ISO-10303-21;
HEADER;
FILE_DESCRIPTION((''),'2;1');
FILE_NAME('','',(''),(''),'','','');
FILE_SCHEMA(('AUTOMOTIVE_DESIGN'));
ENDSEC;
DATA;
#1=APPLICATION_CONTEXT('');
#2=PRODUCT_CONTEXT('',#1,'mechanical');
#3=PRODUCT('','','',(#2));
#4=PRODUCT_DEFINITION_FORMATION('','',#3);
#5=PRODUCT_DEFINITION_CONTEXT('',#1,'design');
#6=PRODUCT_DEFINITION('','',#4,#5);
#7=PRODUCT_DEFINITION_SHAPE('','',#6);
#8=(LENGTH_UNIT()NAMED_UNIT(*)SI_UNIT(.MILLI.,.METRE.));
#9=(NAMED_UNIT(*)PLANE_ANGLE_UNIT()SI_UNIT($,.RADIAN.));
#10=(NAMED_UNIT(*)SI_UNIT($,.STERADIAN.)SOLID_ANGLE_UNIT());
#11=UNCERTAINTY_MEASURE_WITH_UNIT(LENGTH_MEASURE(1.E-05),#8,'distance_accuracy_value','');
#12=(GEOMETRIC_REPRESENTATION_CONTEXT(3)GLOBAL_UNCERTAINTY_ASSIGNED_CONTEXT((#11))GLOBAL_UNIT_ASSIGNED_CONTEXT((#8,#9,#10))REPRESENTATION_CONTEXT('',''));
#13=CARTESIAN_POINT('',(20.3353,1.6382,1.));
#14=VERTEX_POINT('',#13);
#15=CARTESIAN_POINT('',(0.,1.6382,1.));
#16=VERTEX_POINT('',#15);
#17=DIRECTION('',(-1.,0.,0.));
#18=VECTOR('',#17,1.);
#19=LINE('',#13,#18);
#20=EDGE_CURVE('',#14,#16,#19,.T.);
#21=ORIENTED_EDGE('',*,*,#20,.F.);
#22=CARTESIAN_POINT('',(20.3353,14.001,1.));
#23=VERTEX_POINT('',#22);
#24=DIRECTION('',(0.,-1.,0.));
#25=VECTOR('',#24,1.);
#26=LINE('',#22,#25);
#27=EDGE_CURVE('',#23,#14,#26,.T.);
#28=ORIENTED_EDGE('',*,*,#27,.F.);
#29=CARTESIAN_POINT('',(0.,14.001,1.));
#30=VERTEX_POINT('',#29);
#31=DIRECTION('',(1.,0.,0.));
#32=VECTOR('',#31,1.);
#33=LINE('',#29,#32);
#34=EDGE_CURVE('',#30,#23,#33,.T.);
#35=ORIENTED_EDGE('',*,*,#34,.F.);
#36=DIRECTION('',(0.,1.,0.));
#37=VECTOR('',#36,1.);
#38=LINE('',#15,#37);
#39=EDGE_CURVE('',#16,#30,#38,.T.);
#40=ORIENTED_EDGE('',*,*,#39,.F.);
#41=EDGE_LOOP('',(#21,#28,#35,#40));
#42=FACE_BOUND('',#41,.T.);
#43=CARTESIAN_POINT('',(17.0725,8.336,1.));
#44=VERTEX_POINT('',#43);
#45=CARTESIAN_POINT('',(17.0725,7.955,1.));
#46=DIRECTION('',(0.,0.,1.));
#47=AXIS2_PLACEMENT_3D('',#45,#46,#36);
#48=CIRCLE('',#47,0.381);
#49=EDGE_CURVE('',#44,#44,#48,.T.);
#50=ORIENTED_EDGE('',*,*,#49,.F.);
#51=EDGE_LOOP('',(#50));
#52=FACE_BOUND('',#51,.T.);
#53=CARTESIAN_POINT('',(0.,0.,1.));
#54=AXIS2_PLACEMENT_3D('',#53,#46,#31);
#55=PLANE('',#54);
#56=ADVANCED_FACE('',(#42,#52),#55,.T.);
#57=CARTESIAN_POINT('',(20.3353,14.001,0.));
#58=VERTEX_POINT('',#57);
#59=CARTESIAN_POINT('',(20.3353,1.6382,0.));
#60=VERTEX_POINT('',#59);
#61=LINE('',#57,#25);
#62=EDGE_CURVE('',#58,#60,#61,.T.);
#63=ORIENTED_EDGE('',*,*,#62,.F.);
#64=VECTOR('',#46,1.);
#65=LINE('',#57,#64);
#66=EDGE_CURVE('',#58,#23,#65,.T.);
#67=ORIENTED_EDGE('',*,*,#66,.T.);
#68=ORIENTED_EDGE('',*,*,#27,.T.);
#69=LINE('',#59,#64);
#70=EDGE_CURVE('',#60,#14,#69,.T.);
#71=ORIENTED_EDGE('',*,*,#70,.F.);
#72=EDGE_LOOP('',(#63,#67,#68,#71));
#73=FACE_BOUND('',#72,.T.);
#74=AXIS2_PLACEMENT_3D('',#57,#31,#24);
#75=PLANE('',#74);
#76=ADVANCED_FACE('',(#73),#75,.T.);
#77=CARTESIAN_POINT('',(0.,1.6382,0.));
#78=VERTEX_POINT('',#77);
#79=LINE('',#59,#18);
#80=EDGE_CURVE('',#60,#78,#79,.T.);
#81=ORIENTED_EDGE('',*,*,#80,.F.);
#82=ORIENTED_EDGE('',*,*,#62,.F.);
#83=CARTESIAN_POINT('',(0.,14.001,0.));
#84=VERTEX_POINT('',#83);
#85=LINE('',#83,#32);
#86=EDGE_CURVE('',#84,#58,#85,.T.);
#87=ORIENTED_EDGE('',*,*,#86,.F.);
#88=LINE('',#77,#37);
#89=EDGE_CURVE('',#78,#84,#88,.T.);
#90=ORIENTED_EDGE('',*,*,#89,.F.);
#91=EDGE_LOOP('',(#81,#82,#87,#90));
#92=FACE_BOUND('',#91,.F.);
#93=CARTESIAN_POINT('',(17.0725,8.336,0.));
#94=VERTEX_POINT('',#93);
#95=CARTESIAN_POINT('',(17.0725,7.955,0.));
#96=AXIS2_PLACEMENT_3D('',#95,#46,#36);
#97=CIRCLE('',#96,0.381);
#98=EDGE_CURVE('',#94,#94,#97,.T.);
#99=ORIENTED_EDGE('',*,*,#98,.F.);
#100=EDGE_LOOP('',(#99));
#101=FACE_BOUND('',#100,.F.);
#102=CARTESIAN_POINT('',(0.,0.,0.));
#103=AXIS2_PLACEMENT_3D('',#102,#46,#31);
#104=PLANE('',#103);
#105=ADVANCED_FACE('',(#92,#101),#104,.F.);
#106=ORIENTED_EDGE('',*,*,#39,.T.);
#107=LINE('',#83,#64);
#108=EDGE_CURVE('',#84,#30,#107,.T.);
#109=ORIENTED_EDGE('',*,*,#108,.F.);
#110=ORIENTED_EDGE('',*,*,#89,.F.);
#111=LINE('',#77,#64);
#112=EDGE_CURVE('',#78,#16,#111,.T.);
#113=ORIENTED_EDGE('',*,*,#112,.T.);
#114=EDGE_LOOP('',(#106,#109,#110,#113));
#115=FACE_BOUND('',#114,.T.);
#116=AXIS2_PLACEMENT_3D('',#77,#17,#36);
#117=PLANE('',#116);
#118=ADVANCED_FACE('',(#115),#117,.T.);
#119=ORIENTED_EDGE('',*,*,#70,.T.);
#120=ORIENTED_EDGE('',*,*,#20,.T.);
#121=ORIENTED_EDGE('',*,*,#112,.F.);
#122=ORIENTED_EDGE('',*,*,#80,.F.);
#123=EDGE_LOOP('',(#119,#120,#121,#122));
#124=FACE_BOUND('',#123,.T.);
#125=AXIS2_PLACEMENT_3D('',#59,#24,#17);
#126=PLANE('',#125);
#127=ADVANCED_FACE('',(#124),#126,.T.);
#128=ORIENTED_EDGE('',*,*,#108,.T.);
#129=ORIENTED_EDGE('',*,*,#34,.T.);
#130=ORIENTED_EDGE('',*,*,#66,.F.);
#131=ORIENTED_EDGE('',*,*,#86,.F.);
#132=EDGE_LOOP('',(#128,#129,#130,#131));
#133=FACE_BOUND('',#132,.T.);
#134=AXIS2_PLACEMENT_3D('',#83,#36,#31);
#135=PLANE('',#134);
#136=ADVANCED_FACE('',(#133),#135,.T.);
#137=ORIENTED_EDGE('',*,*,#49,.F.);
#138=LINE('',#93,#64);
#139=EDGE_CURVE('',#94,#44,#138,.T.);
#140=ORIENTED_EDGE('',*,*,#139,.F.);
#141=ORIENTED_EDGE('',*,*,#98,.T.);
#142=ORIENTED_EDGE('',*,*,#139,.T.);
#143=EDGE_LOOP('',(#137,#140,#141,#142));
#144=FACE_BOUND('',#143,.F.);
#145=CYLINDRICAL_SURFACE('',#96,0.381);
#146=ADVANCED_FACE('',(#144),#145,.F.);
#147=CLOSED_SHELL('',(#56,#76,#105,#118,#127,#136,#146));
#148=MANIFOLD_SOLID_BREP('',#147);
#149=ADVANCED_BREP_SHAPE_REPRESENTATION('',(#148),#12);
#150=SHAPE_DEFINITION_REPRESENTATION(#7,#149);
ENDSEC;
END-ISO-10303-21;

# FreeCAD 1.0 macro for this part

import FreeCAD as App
import Part
import Sketcher

V = App.Vector
Q = App.Units.Quantity


def add_polygon(sketch, points):
    """Adds a closed chain of lines whose ends are joined by coincident constraints."""
    first, n = sketch.GeometryCount, len(points)
    for a, b in zip(points, points[1:] + points[:1]):
        sketch.addGeometry(Part.LineSegment(App.Vector(*a, 0), App.Vector(*b, 0)), False)
    for i in range(n):
        sketch.addConstraint(Sketcher.Constraint("Coincident", first + i, 2, first + (i + 1) % n, 1))

doc = App.newDocument("Part")
params = doc.addObject("Spreadsheet::Sheet", "Params")
for row, (alias, value) in enumerate([
    ("pad1_length", "1 mm"),
    ("hole_diameter", "0.762 mm"),
], start=1):
    params.set(f"A{row}", alias)
    params.set(f"B{row}", "=" + value)
    params.setAlias(f"B{row}", alias)

body = doc.addObject("PartDesign::Body", "Body")

sketch1 = body.newObject("Sketcher::SketchObject", "Sketch")
sketch1.AttachmentSupport = (doc.getObject("XY_Plane"), [""])
sketch1.MapMode = "FlatFace"
add_polygon(sketch1, [(20, 14), (0, 14), (0, 2), (20, 2)])
sketch1.addConstraint([
    Sketcher.Constraint("Horizontal", 0),
    Sketcher.Constraint("Vertical", 1),
    Sketcher.Constraint("Horizontal", 2),
    Sketcher.Constraint("Vertical", 3),
    Sketcher.Constraint("PointOnObject", 0, 2, -2),
    Sketcher.Constraint("DistanceX", 0, 2, 0, 1, Q("20.3353 mm")),
    Sketcher.Constraint("DistanceY", 1, 2, 1, 1, Q("12.3628 mm")),
    Sketcher.Constraint("DistanceY", -1, 1, 0, 2, Q("14.001 mm")),
])
pad1 = body.newObject("PartDesign::Pad", "Pad")
pad1.Profile = sketch1
pad1.setExpression("Length", "Params.pad1_length")

sketch2 = body.newObject("Sketcher::SketchObject", "Sketch001")
sketch2.AttachmentSupport = (doc.getObject("XY_Plane"), [""])
sketch2.MapMode = "FlatFace"
sketch2.addGeometry(Part.Circle(V(17.07, 7.96, 0), V(0, 0, 1), 0.38), False)
sketch2.addConstraint([
    Sketcher.Constraint("Diameter", 0, Q("0.762 mm")),
    Sketcher.Constraint("DistanceY", -1, 1, 0, 3, Q("7.955 mm")),
    Sketcher.Constraint("DistanceX", -1, 1, 0, 3, Q("17.0725 mm")),
])
doc.recompute()
hole = body.newObject("PartDesign::Hole", "Hole")
hole.Profile = sketch2
hole.ThreadType = "None"
hole.setExpression("Diameter", "Params.hole_diameter")
hole.DepthType = "ThroughAll"
hole.Reversed = True

doc.recompute()
